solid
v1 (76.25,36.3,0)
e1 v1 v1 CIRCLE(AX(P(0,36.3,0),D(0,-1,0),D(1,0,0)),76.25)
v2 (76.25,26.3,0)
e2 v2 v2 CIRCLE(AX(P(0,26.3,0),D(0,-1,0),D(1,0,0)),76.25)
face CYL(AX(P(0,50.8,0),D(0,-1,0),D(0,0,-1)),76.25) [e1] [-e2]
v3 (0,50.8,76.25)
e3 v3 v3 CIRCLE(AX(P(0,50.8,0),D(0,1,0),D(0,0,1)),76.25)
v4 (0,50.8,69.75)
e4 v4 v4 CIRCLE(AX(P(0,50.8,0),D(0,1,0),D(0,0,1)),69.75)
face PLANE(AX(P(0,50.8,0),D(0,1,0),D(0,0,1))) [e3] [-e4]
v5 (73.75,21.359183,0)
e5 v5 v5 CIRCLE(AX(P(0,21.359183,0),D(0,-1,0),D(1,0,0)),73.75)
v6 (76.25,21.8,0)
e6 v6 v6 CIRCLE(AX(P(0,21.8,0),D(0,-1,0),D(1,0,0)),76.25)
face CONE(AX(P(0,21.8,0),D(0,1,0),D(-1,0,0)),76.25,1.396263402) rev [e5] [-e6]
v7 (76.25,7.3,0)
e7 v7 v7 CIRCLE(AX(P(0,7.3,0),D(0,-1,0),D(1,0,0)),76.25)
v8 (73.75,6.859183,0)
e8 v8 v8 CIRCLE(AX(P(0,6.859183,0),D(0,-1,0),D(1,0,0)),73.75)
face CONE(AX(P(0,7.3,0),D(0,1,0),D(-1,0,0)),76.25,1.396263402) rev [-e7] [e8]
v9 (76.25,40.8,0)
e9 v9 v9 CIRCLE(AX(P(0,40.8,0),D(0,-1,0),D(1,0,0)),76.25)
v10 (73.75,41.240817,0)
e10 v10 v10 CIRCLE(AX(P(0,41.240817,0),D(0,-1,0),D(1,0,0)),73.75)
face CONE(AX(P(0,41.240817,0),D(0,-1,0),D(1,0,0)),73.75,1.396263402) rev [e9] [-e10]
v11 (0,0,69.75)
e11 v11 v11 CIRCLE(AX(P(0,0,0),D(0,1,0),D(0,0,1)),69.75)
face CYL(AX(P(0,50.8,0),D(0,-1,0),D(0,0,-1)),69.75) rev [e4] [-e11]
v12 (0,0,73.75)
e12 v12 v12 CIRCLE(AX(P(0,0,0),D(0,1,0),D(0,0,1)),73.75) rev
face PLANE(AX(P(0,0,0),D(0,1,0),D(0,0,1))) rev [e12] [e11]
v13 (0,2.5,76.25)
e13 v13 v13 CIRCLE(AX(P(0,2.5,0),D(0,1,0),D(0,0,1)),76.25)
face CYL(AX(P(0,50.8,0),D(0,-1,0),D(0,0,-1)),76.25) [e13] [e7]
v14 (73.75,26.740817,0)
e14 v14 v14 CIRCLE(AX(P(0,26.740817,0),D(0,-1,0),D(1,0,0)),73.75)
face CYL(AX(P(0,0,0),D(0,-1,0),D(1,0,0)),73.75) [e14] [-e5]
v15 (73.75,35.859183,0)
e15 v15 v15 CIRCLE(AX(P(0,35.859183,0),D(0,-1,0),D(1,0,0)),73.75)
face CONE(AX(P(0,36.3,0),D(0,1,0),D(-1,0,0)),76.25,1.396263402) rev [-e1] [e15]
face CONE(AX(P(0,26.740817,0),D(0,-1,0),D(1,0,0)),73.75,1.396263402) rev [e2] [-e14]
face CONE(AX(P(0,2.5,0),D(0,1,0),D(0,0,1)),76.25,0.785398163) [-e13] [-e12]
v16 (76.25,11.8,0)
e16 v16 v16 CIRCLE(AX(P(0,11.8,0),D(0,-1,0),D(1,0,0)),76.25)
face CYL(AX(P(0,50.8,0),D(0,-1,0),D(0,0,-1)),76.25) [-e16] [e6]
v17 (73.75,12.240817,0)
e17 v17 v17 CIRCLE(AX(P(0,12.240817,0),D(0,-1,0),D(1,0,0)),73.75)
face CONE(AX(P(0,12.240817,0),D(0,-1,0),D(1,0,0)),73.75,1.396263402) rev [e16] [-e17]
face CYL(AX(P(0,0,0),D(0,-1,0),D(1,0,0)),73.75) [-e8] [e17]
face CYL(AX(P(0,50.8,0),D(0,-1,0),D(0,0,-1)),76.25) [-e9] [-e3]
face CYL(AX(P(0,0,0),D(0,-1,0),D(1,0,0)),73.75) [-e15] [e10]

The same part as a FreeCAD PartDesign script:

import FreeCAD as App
import Part
import Sketcher
Q = App.Units.Quantity


def edges_at(feature, points):
    """Names of the edges that pass closest to the given points."""
    edges = feature.Shape.Edges
    near = lambda p: min(range(len(edges)), key=lambda i: edges[i].distToShape(Part.Vertex(*p))[0])
    return sorted({f"Edge{near(p) + 1}" for p in points})


def add_polygon(sketch, points):
    """Adds a closed chain of lines whose ends are joined by coincident constraints."""
    first, n = sketch.GeometryCount, len(points)
    for a, b in zip(points, points[1:] + points[:1]):
        sketch.addGeometry(Part.LineSegment(App.Vector(*a, 0), App.Vector(*b, 0)), False)
    for i in range(n):
        sketch.addConstraint(Sketcher.Constraint("Coincident", first + i, 2, first + (i + 1) % n, 1))

doc = App.newDocument("Part")
body = doc.addObject("PartDesign::Body", "Body")

# Sketch on XZ plane
sketch1 = doc.addObject("Sketcher::SketchObject", "Sketch")
body.addObject(sketch1)
sketch1.AttachmentSupport = (doc.XZ_Plane, [""])
sketch1.MapMode = "FlatFace"
sketch1.addGeometry([
    Part.Circle(App.Vector(0, 0, 0), App.Vector(0, 0, 1), 76),
    Part.Circle(App.Vector(0, 0, 0), App.Vector(0, 0, 1), 70),
], False)
sketch1.addConstraint([
    Sketcher.Constraint("Coincident", 0, 3, -1, 1),
    Sketcher.Constraint("Coincident", 1, 3, -1, 1),
    Sketcher.Constraint("Diameter", 0, 152.5),
    Sketcher.Constraint("Diameter", 1, 139.5),
])
pad1 = doc.addObject("PartDesign::Pad", "Pad")
body.addObject(pad1)
pad1.Profile = sketch1
pad1.Length = 50.8
pad1.Reversed = True

# Sketch on XY plane
sketch2 = doc.addObject("Sketcher::SketchObject", "Sketch001")
body.addObject(sketch2)
sketch2.AttachmentSupport = (doc.XY_Plane, [""])
sketch2.MapMode = "FlatFace"
add_polygon(sketch2, [(-76.2, 40.8), (-76.2, 36.3), (-73.8, 35.9), (-73.8, 41.2)])  # lines 0-3
add_polygon(sketch2, [(-73.8, 21.4), (-73.8, 26.7), (-76.2, 26.3), (-76.2, 21.8)])  # lines 4-7
add_polygon(sketch2, [(-73.8, 6.9), (-73.8, 12.2), (-76.2, 11.8), (-76.2, 7.3)])  # lines 8-11
sketch2.addConstraint([
    Sketcher.Constraint("Vertical", 0),
    Sketcher.Constraint("Vertical", 2),
    Sketcher.Constraint("Vertical", 4),
    Sketcher.Constraint("Vertical", 6),
    Sketcher.Constraint("Vertical", 8),
    Sketcher.Constraint("Vertical", 10),
    Sketcher.Constraint("Parallel", 3, 5),
    Sketcher.Constraint("Parallel", 1, 7),
    Sketcher.Constraint("Parallel", 5, 9),
    Sketcher.Constraint("Parallel", 7, 11),
    Sketcher.Constraint("Vertical", 2, 2, 4, 2),
    Sketcher.Constraint("Vertical", 3, 2, 5, 2),
    Sketcher.Constraint("Vertical", 7, 2, 8, 2),
    Sketcher.Constraint("Vertical", 6, 2, 9, 2),
    Sketcher.Constraint("Equal", 2, 4),
    Sketcher.Constraint("Equal", 4, 8),
    Sketcher.Constraint("Equal", 1, 3),
    Sketcher.Constraint("Angle", 1, Q("-10 deg")),
    Sketcher.Constraint("DistanceY", 0, 2, 0, 1, 4.5),
    Sketcher.Constraint("DistanceY", 5, 2, 0, 2, 10.0),
    Sketcher.Constraint("DistanceY", 9, 2, 6, 2, 10.0),
    Sketcher.Constraint("DistanceY", -1, 1, 0, 2, 36.3),
    Sketcher.Constraint("DistanceX", 0, 2, 1, 2, 2.5),
    Sketcher.Constraint("DistanceX", 0, 2, -1, 1, 76.25),
])
groove = doc.addObject("PartDesign::Groove", "Groove")
body.addObject(groove)
groove.Profile = sketch2
groove.ReferenceAxis = (sketch2, ["V_Axis"])
groove.Angle = 360
doc.recompute()

chamfer = doc.addObject("PartDesign::Chamfer", "Chamfer")
body.addObject(chamfer)
chamfer.Base = (groove, edges_at(groove, [(-76.25, 0, 0)]))
chamfer.Size = 2.5

doc.recompute()
